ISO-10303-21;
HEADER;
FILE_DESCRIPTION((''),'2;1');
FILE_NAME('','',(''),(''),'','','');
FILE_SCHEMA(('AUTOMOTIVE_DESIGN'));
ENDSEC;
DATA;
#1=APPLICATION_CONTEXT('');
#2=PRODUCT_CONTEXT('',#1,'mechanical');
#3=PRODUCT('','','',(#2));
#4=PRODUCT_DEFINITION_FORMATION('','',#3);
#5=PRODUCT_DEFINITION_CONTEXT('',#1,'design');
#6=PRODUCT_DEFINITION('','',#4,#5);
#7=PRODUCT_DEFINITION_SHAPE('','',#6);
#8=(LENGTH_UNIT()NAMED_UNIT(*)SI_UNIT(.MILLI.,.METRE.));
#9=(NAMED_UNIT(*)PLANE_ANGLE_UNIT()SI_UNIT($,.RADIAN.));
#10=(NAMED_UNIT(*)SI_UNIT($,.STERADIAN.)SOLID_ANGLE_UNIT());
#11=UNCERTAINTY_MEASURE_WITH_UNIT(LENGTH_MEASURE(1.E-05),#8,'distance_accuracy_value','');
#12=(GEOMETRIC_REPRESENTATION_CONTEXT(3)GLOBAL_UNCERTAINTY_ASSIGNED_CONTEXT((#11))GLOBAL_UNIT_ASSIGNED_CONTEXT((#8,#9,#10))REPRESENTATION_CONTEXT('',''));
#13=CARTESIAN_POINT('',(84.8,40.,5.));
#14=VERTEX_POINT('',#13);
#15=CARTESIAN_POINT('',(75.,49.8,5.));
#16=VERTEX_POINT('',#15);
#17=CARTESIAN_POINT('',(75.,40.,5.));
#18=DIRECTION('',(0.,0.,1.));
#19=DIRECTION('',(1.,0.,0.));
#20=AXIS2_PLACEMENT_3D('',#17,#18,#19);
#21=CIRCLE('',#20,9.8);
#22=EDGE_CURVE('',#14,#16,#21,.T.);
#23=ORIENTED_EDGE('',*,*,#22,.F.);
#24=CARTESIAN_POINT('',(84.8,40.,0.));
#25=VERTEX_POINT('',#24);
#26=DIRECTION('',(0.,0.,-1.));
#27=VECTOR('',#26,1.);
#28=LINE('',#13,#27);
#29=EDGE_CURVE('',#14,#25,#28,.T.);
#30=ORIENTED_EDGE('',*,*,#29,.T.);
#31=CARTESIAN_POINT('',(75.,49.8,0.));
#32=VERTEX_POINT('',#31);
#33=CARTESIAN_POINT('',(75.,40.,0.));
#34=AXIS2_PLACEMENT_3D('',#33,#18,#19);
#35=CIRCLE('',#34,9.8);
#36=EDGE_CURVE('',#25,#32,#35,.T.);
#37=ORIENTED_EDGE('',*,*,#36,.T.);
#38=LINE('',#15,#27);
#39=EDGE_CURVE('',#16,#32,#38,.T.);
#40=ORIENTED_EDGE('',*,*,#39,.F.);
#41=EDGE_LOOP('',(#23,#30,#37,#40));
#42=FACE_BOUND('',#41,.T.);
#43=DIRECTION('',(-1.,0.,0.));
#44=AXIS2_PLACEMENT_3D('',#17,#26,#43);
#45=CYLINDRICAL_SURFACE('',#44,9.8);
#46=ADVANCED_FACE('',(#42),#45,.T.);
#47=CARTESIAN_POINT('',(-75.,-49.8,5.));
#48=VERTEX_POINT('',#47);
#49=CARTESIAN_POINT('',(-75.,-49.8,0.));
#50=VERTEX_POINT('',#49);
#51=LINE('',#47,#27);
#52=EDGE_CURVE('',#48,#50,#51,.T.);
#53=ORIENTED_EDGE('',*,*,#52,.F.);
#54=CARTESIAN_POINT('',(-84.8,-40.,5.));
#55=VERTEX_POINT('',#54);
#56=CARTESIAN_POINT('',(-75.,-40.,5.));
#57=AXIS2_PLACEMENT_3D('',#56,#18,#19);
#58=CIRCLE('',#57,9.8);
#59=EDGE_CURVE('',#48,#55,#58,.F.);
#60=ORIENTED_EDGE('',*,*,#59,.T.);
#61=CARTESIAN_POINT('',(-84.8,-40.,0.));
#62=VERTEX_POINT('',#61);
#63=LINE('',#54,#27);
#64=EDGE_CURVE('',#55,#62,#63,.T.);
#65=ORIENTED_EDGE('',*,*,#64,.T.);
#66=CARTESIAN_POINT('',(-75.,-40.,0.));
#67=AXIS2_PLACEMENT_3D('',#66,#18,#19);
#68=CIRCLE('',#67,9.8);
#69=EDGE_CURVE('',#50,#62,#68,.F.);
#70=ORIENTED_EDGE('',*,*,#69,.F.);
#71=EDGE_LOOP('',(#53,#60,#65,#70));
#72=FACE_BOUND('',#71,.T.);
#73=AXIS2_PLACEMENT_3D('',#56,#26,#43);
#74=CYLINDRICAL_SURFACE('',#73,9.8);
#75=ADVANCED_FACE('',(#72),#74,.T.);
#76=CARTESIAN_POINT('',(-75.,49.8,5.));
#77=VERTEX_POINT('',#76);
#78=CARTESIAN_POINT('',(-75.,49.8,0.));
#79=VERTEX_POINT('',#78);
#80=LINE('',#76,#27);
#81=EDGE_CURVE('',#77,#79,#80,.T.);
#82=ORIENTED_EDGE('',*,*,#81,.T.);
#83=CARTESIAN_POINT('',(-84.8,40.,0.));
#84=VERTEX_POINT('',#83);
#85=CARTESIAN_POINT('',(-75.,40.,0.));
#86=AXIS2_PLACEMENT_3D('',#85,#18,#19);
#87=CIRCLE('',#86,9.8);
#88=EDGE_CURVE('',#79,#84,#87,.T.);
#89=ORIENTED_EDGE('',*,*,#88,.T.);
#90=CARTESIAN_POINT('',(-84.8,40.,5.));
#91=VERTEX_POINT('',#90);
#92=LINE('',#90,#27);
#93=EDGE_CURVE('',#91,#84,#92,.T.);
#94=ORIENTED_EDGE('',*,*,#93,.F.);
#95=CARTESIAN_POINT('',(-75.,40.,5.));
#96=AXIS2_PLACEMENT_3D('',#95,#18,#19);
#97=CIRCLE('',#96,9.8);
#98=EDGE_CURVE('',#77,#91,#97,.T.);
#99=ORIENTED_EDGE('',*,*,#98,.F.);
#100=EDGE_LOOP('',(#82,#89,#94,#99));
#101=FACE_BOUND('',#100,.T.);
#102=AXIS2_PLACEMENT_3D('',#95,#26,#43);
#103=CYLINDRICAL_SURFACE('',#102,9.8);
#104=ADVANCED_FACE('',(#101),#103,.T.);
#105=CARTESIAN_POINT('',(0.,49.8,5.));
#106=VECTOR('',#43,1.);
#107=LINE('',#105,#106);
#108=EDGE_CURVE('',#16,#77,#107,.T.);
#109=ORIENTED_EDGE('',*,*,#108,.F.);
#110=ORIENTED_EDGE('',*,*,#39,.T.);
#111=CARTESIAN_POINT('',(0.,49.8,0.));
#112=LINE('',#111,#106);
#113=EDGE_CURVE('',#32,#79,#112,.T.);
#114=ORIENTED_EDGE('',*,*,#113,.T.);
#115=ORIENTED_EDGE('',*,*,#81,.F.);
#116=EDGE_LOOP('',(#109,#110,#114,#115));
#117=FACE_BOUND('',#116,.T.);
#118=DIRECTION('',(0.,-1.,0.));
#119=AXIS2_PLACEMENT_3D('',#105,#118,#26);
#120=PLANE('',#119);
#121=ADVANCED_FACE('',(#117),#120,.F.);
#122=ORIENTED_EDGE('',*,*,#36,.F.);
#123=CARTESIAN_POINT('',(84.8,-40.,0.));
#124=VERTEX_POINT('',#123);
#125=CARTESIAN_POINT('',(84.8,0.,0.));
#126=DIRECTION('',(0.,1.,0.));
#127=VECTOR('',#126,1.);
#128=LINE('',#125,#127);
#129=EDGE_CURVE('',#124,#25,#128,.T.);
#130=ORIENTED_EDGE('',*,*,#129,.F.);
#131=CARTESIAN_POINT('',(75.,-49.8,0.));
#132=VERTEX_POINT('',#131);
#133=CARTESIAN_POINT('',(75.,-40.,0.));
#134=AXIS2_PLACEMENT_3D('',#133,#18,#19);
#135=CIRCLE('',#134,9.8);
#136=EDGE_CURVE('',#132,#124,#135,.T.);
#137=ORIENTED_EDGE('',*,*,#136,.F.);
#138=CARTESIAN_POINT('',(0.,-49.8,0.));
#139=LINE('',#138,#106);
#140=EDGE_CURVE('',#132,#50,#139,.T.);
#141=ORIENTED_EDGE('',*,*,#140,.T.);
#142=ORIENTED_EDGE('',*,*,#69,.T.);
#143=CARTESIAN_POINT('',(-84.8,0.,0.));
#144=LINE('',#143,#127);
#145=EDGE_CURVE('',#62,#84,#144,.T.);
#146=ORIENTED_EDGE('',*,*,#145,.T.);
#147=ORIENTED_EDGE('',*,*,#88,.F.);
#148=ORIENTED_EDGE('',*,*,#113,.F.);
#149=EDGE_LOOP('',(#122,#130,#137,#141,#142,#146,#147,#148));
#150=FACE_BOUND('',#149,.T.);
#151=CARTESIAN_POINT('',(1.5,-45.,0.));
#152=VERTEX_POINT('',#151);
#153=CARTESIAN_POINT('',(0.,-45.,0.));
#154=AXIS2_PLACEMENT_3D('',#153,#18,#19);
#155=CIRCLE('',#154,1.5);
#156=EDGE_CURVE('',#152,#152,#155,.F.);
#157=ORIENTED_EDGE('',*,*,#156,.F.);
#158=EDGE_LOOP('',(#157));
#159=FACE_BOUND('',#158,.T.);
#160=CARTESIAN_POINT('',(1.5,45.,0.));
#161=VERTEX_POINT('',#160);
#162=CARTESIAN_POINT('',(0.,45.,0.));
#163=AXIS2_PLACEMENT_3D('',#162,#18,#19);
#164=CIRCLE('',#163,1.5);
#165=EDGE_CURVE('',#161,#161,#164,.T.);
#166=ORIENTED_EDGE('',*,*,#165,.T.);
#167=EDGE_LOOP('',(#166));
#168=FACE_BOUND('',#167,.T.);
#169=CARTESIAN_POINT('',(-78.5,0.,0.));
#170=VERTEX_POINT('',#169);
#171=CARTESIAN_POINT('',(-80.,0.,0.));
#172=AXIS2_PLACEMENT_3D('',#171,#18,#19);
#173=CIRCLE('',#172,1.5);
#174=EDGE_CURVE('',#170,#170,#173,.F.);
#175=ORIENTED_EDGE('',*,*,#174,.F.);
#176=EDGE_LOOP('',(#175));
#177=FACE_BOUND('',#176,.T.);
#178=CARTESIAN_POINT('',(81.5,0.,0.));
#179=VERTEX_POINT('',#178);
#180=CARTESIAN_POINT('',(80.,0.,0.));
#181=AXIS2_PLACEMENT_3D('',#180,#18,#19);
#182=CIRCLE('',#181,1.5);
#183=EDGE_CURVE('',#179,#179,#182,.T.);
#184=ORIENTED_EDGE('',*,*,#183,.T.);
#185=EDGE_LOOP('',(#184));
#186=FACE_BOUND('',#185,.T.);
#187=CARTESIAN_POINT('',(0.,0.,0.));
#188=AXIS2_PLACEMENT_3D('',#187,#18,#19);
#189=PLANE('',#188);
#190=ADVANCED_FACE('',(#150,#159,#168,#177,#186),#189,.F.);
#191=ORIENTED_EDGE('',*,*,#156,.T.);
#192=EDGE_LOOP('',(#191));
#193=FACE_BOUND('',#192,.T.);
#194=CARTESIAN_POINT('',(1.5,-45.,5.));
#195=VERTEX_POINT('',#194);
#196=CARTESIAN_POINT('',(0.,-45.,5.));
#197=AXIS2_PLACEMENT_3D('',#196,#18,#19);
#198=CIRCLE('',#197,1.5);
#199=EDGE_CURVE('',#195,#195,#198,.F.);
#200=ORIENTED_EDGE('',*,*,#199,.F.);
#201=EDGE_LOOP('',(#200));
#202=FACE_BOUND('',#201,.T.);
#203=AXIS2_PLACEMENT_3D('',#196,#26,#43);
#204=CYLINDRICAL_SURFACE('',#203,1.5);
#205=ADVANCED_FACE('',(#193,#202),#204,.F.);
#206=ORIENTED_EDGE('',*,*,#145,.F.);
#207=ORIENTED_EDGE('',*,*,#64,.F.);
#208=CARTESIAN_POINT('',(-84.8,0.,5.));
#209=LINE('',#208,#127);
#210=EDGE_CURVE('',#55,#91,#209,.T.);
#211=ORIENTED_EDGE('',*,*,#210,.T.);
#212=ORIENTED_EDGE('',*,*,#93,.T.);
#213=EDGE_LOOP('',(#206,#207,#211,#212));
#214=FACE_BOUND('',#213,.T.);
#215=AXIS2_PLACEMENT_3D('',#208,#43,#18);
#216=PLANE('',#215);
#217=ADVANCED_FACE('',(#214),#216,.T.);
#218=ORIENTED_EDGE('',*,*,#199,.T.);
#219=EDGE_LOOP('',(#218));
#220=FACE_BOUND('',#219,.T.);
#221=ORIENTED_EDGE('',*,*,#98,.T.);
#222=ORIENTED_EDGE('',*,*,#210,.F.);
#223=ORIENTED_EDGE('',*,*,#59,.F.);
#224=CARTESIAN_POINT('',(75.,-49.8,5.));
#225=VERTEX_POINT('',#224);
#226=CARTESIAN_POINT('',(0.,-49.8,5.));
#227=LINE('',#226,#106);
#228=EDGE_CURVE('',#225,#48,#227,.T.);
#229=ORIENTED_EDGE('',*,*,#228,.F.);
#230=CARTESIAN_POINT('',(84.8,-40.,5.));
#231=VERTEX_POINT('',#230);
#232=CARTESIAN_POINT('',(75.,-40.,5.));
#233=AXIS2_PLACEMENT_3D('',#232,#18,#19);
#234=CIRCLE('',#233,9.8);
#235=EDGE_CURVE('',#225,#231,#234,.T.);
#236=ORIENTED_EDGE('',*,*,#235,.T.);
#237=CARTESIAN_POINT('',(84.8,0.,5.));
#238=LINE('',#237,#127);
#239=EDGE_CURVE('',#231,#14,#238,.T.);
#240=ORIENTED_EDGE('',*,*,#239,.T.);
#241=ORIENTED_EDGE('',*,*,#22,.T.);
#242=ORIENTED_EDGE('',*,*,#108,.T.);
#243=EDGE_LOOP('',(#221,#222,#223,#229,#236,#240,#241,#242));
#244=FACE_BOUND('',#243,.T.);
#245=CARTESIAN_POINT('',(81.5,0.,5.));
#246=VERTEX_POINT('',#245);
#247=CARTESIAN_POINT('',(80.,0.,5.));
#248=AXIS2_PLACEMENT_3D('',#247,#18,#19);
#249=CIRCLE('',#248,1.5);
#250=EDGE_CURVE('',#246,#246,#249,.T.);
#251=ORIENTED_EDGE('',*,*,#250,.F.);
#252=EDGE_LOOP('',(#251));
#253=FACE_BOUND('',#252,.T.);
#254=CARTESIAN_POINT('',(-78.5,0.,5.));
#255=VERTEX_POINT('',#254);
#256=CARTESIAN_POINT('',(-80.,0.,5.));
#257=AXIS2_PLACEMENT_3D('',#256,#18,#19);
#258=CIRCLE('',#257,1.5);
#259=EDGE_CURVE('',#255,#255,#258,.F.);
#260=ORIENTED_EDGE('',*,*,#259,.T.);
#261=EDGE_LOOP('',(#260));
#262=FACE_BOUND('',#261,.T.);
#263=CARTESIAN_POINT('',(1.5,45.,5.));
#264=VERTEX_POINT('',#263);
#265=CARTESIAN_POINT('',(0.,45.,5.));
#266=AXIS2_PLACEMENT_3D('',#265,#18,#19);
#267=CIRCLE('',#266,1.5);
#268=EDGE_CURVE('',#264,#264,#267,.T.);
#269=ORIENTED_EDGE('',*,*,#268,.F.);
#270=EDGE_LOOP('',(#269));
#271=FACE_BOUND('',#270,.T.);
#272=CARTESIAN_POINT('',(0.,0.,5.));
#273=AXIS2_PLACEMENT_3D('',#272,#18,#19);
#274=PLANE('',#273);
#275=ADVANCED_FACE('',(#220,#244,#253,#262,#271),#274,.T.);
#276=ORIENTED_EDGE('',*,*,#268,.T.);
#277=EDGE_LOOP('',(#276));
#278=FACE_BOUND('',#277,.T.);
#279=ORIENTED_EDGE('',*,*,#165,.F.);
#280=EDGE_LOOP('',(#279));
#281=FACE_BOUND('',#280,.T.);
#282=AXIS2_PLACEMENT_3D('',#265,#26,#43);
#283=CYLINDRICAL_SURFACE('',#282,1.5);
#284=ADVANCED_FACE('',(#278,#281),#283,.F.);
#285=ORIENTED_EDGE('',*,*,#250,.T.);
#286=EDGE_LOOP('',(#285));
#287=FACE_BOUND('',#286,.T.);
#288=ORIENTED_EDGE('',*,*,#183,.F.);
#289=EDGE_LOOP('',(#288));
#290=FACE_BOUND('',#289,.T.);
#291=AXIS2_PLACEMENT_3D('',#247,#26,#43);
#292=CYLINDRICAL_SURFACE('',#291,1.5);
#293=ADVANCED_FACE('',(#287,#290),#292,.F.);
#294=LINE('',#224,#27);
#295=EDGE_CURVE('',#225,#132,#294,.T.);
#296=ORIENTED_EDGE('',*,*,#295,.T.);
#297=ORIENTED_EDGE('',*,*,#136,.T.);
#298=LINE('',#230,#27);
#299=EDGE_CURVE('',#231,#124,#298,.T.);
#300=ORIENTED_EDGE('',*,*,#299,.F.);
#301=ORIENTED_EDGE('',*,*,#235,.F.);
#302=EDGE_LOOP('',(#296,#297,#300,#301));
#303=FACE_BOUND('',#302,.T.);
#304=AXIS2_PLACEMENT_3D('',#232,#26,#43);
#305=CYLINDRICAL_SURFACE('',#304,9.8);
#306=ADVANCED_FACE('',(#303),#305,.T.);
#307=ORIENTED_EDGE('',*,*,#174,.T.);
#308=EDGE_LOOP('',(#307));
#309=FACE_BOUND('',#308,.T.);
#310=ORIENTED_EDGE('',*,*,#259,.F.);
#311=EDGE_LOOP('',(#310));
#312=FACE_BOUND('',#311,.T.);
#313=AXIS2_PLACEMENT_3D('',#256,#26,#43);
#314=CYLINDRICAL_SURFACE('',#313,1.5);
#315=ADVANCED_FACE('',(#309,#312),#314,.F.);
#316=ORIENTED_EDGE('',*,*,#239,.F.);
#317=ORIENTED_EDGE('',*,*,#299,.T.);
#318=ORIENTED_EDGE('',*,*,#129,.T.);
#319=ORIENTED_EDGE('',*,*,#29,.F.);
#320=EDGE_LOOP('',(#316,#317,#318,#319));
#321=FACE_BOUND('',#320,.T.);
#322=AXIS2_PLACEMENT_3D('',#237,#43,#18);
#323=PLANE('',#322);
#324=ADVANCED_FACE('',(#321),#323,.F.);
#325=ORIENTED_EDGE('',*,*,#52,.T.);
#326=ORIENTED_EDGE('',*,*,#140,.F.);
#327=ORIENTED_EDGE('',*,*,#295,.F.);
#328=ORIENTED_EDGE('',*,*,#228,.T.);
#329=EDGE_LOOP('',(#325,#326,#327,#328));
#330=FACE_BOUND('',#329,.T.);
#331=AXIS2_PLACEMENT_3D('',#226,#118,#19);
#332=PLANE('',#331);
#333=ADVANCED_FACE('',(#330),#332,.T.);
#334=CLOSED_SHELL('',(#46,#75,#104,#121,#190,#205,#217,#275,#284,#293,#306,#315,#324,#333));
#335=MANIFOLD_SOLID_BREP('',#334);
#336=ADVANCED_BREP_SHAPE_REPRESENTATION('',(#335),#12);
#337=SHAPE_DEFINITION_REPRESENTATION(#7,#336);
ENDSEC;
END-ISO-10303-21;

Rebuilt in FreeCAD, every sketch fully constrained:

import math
import FreeCAD as App
import Part
import Sketcher

V = App.Vector

doc = App.newDocument("Part")
body = doc.addObject("PartDesign::Body", "Body")

# Sketch on XY plane
sketch1 = body.newObject("Sketcher::SketchObject", "Sketch")
sketch1.AttachmentSupport = (doc.getObject("XY_Plane"), [""])
sketch1.MapMode = "FlatFace"
sketch1.addGeometry([
    Part.LineSegment(V(84.8, -40, 0), V(84.8, 40, 0)),  # 0
    Part.ArcOfCircle(Part.Circle(V(75, 40, 0), V(0, 0, 1), 9.8), math.radians(0), math.radians(90)),  # 1
    Part.LineSegment(V(75, 49.8, 0), V(-75, 49.8, 0)),  # 2
    Part.ArcOfCircle(Part.Circle(V(-75, 40, 0), V(0, 0, 1), 9.8), math.radians(90), math.radians(180)),  # 3
    Part.LineSegment(V(-84.8, 40, 0), V(-84.8, -40, 0)),  # 4
    Part.ArcOfCircle(Part.Circle(V(-75, -40, 0), V(0, 0, 1), 9.8), math.radians(180), math.radians(270)),  # 5
    Part.LineSegment(V(-75, -49.8, 0), V(75, -49.8, 0)),  # 6
    Part.ArcOfCircle(Part.Circle(V(75, -40, 0), V(0, 0, 1), 9.8), math.radians(-90), math.radians(0)),  # 7
    Part.Circle(V(0, -45, 0), V(0, 0, 1), 1.5),  # 8
    Part.Circle(V(-80, 0, 0), V(0, 0, 1), 1.5),  # 9
    Part.Circle(V(80, 0, 0), V(0, 0, 1), 1.5),  # 10
    Part.Circle(V(0, 45, 0), V(0, 0, 1), 1.5),  # 11
], False)
sketch1.addConstraint([
    Sketcher.Constraint("Tangent", 0, 2, 1, 1),
    Sketcher.Constraint("Tangent", 1, 2, 2, 1),
    Sketcher.Constraint("Tangent", 2, 2, 3, 1),
    Sketcher.Constraint("Tangent", 3, 2, 4, 1),
    Sketcher.Constraint("Tangent", 4, 2, 5, 1),
    Sketcher.Constraint("Tangent", 5, 2, 6, 1),
    Sketcher.Constraint("Tangent", 6, 2, 7, 1),
    Sketcher.Constraint("Tangent", 7, 2, 0, 1),
    Sketcher.Constraint("Vertical", 0),
    Sketcher.Constraint("Horizontal", 2),
    Sketcher.Constraint("Vertical", 4),
    Sketcher.Constraint("Horizontal", 6),
    Sketcher.Constraint("Equal", 1, 3),
    Sketcher.Constraint("Equal", 3, 5),
    Sketcher.Constraint("Equal", 5, 7),
    Sketcher.Constraint("Equal", 8, 9),
    Sketcher.Constraint("Equal", 9, 10),
    Sketcher.Constraint("Equal", 10, 11),
    Sketcher.Constraint("Symmetric", 1, 3, 5, 3, -1, 1),
    Sketcher.Constraint("Symmetric", 9, 3, 10, 3, -1, 1),
    Sketcher.Constraint("Symmetric", 8, 3, 11, 3, -1, 1),
    Sketcher.Constraint("PointOnObject", 8, 3, -2),
    Sketcher.Constraint("PointOnObject", 9, 3, -1),
    Sketcher.Constraint("Diameter", 8, 3.0),
    Sketcher.Constraint("Radius", 1, 9.8),
    Sketcher.Constraint("DistanceX", 2, 2, 2, 1, 150.0),
    Sketcher.Constraint("DistanceY", 0, 1, 0, 2, 80.0),
    Sketcher.Constraint("DistanceY", 8, 3, -1, 1, 45.0),
    Sketcher.Constraint("DistanceX", 9, 3, -1, 1, 80.0),
])
pad1 = body.newObject("PartDesign::Pad", "Pad")
pad1.Profile = sketch1
pad1.Length = 5

doc.recompute()
